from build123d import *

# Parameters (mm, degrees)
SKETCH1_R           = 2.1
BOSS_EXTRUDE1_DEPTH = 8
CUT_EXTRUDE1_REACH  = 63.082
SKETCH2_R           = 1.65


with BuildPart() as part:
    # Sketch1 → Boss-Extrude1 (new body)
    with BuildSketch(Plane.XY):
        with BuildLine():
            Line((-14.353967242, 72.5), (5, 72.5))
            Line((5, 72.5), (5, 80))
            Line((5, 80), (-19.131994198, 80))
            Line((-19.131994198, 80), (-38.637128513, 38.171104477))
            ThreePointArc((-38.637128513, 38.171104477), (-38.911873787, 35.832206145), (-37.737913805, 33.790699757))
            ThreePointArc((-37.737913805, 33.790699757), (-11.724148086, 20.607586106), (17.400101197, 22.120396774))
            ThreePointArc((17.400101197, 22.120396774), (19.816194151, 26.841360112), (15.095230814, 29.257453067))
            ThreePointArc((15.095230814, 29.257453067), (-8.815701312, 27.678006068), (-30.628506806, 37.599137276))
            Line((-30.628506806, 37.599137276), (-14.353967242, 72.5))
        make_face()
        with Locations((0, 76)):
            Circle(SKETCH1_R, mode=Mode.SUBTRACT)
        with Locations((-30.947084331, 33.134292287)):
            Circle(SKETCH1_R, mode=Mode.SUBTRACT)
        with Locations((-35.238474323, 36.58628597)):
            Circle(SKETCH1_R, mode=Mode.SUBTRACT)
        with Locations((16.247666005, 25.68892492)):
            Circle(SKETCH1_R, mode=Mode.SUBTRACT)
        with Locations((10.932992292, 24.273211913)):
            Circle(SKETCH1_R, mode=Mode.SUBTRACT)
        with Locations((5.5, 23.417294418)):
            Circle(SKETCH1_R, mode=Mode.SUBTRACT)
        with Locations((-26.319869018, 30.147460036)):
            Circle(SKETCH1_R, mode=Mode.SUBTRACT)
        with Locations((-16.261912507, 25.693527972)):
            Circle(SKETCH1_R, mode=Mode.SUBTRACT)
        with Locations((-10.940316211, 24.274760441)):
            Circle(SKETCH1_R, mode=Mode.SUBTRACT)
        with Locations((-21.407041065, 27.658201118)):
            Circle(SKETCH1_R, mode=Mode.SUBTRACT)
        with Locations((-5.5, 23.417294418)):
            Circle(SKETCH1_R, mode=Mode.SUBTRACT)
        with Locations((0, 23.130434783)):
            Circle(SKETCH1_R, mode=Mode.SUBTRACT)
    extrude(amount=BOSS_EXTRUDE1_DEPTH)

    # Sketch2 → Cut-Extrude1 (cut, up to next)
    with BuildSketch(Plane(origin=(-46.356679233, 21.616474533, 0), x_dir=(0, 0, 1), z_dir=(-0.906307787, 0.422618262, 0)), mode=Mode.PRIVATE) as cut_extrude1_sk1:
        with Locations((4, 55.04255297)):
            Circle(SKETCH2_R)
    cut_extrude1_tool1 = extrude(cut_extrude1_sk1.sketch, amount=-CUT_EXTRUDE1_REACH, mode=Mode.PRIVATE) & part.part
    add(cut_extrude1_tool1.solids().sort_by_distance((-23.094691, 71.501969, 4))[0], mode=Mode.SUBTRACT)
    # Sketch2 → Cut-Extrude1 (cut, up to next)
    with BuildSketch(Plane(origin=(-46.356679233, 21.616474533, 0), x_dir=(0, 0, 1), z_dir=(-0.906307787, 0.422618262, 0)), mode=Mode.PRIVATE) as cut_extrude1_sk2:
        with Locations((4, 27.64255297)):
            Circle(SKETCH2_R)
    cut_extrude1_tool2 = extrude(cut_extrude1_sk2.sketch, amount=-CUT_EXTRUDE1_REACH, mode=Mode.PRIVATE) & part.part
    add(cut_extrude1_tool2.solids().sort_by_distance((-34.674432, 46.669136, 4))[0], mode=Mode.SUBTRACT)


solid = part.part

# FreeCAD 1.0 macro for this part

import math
import FreeCAD as App
import Part
import Sketcher
from FreeCAD import Vector
Q = App.Units.Quantity

doc = App.newDocument("Part")
params = doc.addObject("Spreadsheet::Sheet", "Params")
for row, (alias, value) in enumerate([
    ("sketch1_diameter", "4.2 mm"),
    ("sketch1_radius", "3.75 mm"),
    ("sketch1_height", "7.5 mm"),
    ("pad1_length", "8 mm"),
    ("sketch2_diameter", "3.3 mm"),
    ("sketch3_diameter", "3.3 mm"),
], start=1):
    params.set(f"A{row}", alias)
    params.set(f"B{row}", "=" + value)
    params.setAlias(f"B{row}", alias)

body = doc.addObject("PartDesign::Body", "Body")

# Sketch on XY plane
sketch1 = body.newObject("Sketcher::SketchObject", "Sketch")
sketch1.AttachmentSupport = (doc.getObject("XY_Plane"), [""])
sketch1.MapMode = "FlatFace"
sketch1.addGeometry(Part.LineSegment(Vector(-14.353967, 72.5, 0), Vector(5, 72.5, 0)), False)
sketch1.addGeometry(Part.LineSegment(Vector(5, 72.5, 0), Vector(5, 80, 0)), False)
sketch1.addGeometry(Part.LineSegment(Vector(5, 80, 0), Vector(-19.131994, 80, 0)), False)
sketch1.addGeometry(Part.LineSegment(Vector(-19.131994, 80, 0), Vector(-38.637129, 38.171104, 0)), False)
sketch1.addGeometry(Part.ArcOfCircle(Part.Circle(Vector(-35.238474, 36.586286, 0), Vector(0, 0, 1), 3.75), math.radians(155), math.radians(228.201174)), False)
sketch1.addGeometry(Part.ArcOfCircle(Part.Circle(Vector(0, 76, 0), Vector(0, 0, 1), 56.619565), math.radians(-131.798826), math.radians(-72.102443)), False)
sketch1.addGeometry(Part.ArcOfCircle(Part.Circle(Vector(16.247666, 25.688925, 0), Vector(0, 0, 1), 3.75), math.radians(-72.102443), math.radians(107.897557)), False)
sketch1.addGeometry(Part.ArcOfCircle(Part.Circle(Vector(0, 76, 0), Vector(0, 0, 1), 49.119565), math.radians(-128.575843), math.radians(-72.102443)), False)
sketch1.addGeometry(Part.LineSegment(Vector(-30.628507, 37.599137, 0), Vector(-14.353967, 72.5, 0)), False)
sketch1.addGeometry(Part.Circle(Vector(-30.947084, 33.134292, 0), Vector(0, 0, 1), 2.1), False)
sketch1.addGeometry(Part.Circle(Vector(-26.319869, 30.14746, 0), Vector(0, 0, 1), 2.1), False)
sketch1.addGeometry(Part.Circle(Vector(-21.407041, 27.658201, 0), Vector(0, 0, 1), 2.1), False)
sketch1.addGeometry(Part.Circle(Vector(-10.940316, 24.27476, 0), Vector(0, 0, 1), 2.1), False)
sketch1.addGeometry(Part.Circle(Vector(-16.261913, 25.693528, 0), Vector(0, 0, 1), 2.1), False)
sketch1.addGeometry(Part.Circle(Vector(-35.238474, 36.586286, 0), Vector(0, 0, 1), 2.1), False)
sketch1.addGeometry(Part.Circle(Vector(-5.5, 23.417294, 0), Vector(0, 0, 1), 2.1), False)
sketch1.addGeometry(Part.Circle(Vector(0, 23.130435, 0), Vector(0, 0, 1), 2.1), False)
sketch1.addGeometry(Part.Circle(Vector(5.5, 23.417294, 0), Vector(0, 0, 1), 2.1), False)
sketch1.addGeometry(Part.Circle(Vector(10.932992, 24.273212, 0), Vector(0, 0, 1), 2.1), False)
sketch1.addGeometry(Part.Circle(Vector(16.247666, 25.688925, 0), Vector(0, 0, 1), 2.1), False)
sketch1.addGeometry(Part.Circle(Vector(0, 76, 0), Vector(0, 0, 1), 2.1), False)
sketch1.addConstraint(Sketcher.Constraint("Coincident", 0, 2, 1, 1))
sketch1.addConstraint(Sketcher.Constraint("Coincident", 1, 2, 2, 1))
sketch1.addConstraint(Sketcher.Constraint("Coincident", 2, 2, 3, 1))
sketch1.addConstraint(Sketcher.Constraint("Tangent", 3, 2, 4, 1))
sketch1.addConstraint(Sketcher.Constraint("Tangent", 4, 2, 5, 1))
sketch1.addConstraint(Sketcher.Constraint("Tangent", 5, 2, 6, 1))
sketch1.addConstraint(Sketcher.Constraint("Tangent", 6, 2, 7, 2))
sketch1.addConstraint(Sketcher.Constraint("Coincident", 7, 1, 8, 1))
sketch1.addConstraint(Sketcher.Constraint("Coincident", 8, 2, 0, 1))
sketch1.addConstraint(Sketcher.Constraint("Horizontal", 0))
sketch1.addConstraint(Sketcher.Constraint("Vertical", 1))
sketch1.addConstraint(Sketcher.Constraint("Horizontal", 2))
sketch1.addConstraint(Sketcher.Constraint("Coincident", 7, 3, 5, 3))
sketch1.addConstraint(Sketcher.Constraint("Coincident", 14, 3, 4, 3))
sketch1.addConstraint(Sketcher.Constraint("Coincident", 19, 3, 6, 3))
sketch1.addConstraint(Sketcher.Constraint("Coincident", 20, 3, 5, 3))
sketch1.addConstraint(Sketcher.Constraint("Equal", 4, 6))
sketch1.addConstraint(Sketcher.Constraint("Equal", 9, 10))
sketch1.addConstraint(Sketcher.Constraint("Equal", 10, 11))
sketch1.addConstraint(Sketcher.Constraint("Equal", 11, 12))
sketch1.addConstraint(Sketcher.Constraint("Equal", 12, 13))
sketch1.addConstraint(Sketcher.Constraint("Equal", 13, 14))
sketch1.addConstraint(Sketcher.Constraint("Equal", 14, 15))
sketch1.addConstraint(Sketcher.Constraint("Equal", 15, 16))
sketch1.addConstraint(Sketcher.Constraint("Equal", 16, 17))
sketch1.addConstraint(Sketcher.Constraint("Equal", 17, 18))
sketch1.addConstraint(Sketcher.Constraint("Equal", 18, 19))
sketch1.addConstraint(Sketcher.Constraint("Equal", 19, 20))
sketch1.addConstraint(Sketcher.Constraint("Symmetric", 15, 3, 17, 3, -2))
sketch1.addConstraint(Sketcher.Constraint("PointOnObject", 5, 3, -2))
sketch1.addConstraint(Sketcher.Constraint("PointOnObject", 16, 3, -2))
sketch1.addConstraint(Sketcher.Constraint("Parallel", 3, 8))
sketch1.addConstraint(Sketcher.Constraint("Diameter", 9, Q("4.2 mm")))
sketch1.addConstraint(Sketcher.Constraint("Angle", 3, Q("-115 deg")))
sketch1.addConstraint(Sketcher.Constraint("Radius", 4, Q("3.75 mm")))
sketch1.addConstraint(Sketcher.Constraint("DistanceY", 1, 1, 1, 2, Q("7.5 mm")))
sketch1.addConstraint(Sketcher.Constraint("DistanceY", -1, 1, 5, 3, Q("76 mm")))
sketch1.addConstraint(Sketcher.Constraint("DistanceX", -1, 1, 0, 2, Q("5 mm")))
sketch1.addConstraint(Sketcher.Constraint("DistanceY", -1, 1, 1, 2, Q("80 mm")))
sketch1.addConstraint(Sketcher.Constraint("DistanceX", 15, 3, 17, 3, Q("11 mm")))
sketch1.addConstraint(Sketcher.Constraint("Radius", 5, Q("56.619565 mm")))
sketch1.addConstraint(Sketcher.Constraint("DistanceY", -1, 1, 11, 3, Q("27.658201 mm")))
sketch1.addConstraint(Sketcher.Constraint("DistanceY", -1, 1, 4, 2, Q("33.7907 mm")))
sketch1.addConstraint(Sketcher.Constraint("DistanceX", -1, 1, 5, 2, Q("17.400101 mm")))
sketch1.addConstraint(Sketcher.Constraint("DistanceY", 12, 3, 10, 3, Q("5.8727 mm")))
sketch1.addConstraint(Sketcher.Constraint("Distance", 8, Q("38.508841 mm")))
sketch1.addConstraint(Sketcher.Constraint("DistanceX", 10, 3, -1, 1, Q("26.319869 mm")))
sketch1.addConstraint(Sketcher.Constraint("DistanceY", -1, 1, 10, 3, Q("30.14746 mm")))
sketch1.addConstraint(Sketcher.Constraint("DistanceX", 11, 3, -1, 1, Q("21.407041 mm")))
sketch1.addConstraint(Sketcher.Constraint("DistanceY", -1, 1, 18, 3, Q("24.273212 mm")))
sketch1.addConstraint(Sketcher.Constraint("DistanceX", 4, 3, 9, 3, Q("4.29139 mm")))
sketch1.addConstraint(Sketcher.Constraint("DistanceY", 11, 3, 9, 3, Q("5.476091 mm")))
sketch1.addConstraint(Sketcher.Constraint("DistanceX", 9, 3, 12, 3, Q("20.006768 mm")))
sketch1.addConstraint(Sketcher.Constraint("DistanceX", 11, 3, 13, 3, Q("5.145129 mm")))
sketch1.addConstraint(Sketcher.Constraint("DistanceY", 15, 3, 6, 3, Q("2.271631 mm")))
sketch1.addConstraint(Sketcher.Constraint("DistanceY", 16, 3, 15, 3, Q("0.28686 mm")))
sketch1.addConstraint(Sketcher.Constraint("DistanceX", 12, 3, 18, 3, Q("21.873309 mm")))
sketch1.addConstraint(Sketcher.Constraint("DistanceY", -1, 1, 13, 3, Q("25.693528 mm")))
sketch1.setExpression("Constraints[32]", "Params.sketch1_diameter")
sketch1.setExpression("Constraints[34]", "Params.sketch1_radius")
sketch1.setExpression("Constraints[35]", "Params.sketch1_height")
pad1 = body.newObject("PartDesign::Pad", "Pad")
pad1.Profile = sketch1
pad1.setExpression("Length", "Params.pad1_length")

# Sketch on an angled plane
sketch2 = body.newObject("Sketcher::SketchObject", "Sketch001")
sketch2.Placement = App.Placement(Vector(-46.356679, 21.616475, 0), App.Rotation(Vector(0, 0, 1), Vector(0.422618262, 0.906307787, 0), Vector(-0.906307787, 0.422618262, 0), "ZXY"))
sketch2.addGeometry(Part.Circle(Vector(4, 55.042553, 0), Vector(0, 0, 1), 1.65), False)
sketch2.addConstraint(Sketcher.Constraint("Diameter", 0, Q("3.3 mm")))
sketch2.addConstraint(Sketcher.Constraint("DistanceX", -1, 1, 0, 3, Q("4 mm")))
sketch2.addConstraint(Sketcher.Constraint("DistanceY", -1, 1, 0, 3, Q("55.042553 mm")))
sketch2.setExpression("Constraints[0]", "Params.sketch2_diameter")
pocket1 = body.newObject("PartDesign::Pocket", "Pocket")
pocket1.Profile = sketch2
pocket1.Type = "UpToFirst"

# Sketch on an angled plane
sketch3 = body.newObject("Sketcher::SketchObject", "Sketch002")
sketch3.Placement = App.Placement(Vector(-46.356679, 21.616475, 0), App.Rotation(Vector(0, 0, 1), Vector(0.422618262, 0.906307787, 0), Vector(-0.906307787, 0.422618262, 0), "ZXY"))
sketch3.addGeometry(Part.Circle(Vector(4, 27.642553, 0), Vector(0, 0, 1), 1.65), False)
sketch3.addConstraint(Sketcher.Constraint("Diameter", 0, Q("3.3 mm")))
sketch3.addConstraint(Sketcher.Constraint("DistanceX", -1, 1, 0, 3, Q("4 mm")))
sketch3.addConstraint(Sketcher.Constraint("DistanceY", -1, 1, 0, 3, Q("27.642553 mm")))
sketch3.setExpression("Constraints[0]", "Params.sketch3_diameter")
pocket2 = body.newObject("PartDesign::Pocket", "Pocket001")
pocket2.Profile = sketch3
pocket2.Type = "UpToFirst"

doc.recompute()
